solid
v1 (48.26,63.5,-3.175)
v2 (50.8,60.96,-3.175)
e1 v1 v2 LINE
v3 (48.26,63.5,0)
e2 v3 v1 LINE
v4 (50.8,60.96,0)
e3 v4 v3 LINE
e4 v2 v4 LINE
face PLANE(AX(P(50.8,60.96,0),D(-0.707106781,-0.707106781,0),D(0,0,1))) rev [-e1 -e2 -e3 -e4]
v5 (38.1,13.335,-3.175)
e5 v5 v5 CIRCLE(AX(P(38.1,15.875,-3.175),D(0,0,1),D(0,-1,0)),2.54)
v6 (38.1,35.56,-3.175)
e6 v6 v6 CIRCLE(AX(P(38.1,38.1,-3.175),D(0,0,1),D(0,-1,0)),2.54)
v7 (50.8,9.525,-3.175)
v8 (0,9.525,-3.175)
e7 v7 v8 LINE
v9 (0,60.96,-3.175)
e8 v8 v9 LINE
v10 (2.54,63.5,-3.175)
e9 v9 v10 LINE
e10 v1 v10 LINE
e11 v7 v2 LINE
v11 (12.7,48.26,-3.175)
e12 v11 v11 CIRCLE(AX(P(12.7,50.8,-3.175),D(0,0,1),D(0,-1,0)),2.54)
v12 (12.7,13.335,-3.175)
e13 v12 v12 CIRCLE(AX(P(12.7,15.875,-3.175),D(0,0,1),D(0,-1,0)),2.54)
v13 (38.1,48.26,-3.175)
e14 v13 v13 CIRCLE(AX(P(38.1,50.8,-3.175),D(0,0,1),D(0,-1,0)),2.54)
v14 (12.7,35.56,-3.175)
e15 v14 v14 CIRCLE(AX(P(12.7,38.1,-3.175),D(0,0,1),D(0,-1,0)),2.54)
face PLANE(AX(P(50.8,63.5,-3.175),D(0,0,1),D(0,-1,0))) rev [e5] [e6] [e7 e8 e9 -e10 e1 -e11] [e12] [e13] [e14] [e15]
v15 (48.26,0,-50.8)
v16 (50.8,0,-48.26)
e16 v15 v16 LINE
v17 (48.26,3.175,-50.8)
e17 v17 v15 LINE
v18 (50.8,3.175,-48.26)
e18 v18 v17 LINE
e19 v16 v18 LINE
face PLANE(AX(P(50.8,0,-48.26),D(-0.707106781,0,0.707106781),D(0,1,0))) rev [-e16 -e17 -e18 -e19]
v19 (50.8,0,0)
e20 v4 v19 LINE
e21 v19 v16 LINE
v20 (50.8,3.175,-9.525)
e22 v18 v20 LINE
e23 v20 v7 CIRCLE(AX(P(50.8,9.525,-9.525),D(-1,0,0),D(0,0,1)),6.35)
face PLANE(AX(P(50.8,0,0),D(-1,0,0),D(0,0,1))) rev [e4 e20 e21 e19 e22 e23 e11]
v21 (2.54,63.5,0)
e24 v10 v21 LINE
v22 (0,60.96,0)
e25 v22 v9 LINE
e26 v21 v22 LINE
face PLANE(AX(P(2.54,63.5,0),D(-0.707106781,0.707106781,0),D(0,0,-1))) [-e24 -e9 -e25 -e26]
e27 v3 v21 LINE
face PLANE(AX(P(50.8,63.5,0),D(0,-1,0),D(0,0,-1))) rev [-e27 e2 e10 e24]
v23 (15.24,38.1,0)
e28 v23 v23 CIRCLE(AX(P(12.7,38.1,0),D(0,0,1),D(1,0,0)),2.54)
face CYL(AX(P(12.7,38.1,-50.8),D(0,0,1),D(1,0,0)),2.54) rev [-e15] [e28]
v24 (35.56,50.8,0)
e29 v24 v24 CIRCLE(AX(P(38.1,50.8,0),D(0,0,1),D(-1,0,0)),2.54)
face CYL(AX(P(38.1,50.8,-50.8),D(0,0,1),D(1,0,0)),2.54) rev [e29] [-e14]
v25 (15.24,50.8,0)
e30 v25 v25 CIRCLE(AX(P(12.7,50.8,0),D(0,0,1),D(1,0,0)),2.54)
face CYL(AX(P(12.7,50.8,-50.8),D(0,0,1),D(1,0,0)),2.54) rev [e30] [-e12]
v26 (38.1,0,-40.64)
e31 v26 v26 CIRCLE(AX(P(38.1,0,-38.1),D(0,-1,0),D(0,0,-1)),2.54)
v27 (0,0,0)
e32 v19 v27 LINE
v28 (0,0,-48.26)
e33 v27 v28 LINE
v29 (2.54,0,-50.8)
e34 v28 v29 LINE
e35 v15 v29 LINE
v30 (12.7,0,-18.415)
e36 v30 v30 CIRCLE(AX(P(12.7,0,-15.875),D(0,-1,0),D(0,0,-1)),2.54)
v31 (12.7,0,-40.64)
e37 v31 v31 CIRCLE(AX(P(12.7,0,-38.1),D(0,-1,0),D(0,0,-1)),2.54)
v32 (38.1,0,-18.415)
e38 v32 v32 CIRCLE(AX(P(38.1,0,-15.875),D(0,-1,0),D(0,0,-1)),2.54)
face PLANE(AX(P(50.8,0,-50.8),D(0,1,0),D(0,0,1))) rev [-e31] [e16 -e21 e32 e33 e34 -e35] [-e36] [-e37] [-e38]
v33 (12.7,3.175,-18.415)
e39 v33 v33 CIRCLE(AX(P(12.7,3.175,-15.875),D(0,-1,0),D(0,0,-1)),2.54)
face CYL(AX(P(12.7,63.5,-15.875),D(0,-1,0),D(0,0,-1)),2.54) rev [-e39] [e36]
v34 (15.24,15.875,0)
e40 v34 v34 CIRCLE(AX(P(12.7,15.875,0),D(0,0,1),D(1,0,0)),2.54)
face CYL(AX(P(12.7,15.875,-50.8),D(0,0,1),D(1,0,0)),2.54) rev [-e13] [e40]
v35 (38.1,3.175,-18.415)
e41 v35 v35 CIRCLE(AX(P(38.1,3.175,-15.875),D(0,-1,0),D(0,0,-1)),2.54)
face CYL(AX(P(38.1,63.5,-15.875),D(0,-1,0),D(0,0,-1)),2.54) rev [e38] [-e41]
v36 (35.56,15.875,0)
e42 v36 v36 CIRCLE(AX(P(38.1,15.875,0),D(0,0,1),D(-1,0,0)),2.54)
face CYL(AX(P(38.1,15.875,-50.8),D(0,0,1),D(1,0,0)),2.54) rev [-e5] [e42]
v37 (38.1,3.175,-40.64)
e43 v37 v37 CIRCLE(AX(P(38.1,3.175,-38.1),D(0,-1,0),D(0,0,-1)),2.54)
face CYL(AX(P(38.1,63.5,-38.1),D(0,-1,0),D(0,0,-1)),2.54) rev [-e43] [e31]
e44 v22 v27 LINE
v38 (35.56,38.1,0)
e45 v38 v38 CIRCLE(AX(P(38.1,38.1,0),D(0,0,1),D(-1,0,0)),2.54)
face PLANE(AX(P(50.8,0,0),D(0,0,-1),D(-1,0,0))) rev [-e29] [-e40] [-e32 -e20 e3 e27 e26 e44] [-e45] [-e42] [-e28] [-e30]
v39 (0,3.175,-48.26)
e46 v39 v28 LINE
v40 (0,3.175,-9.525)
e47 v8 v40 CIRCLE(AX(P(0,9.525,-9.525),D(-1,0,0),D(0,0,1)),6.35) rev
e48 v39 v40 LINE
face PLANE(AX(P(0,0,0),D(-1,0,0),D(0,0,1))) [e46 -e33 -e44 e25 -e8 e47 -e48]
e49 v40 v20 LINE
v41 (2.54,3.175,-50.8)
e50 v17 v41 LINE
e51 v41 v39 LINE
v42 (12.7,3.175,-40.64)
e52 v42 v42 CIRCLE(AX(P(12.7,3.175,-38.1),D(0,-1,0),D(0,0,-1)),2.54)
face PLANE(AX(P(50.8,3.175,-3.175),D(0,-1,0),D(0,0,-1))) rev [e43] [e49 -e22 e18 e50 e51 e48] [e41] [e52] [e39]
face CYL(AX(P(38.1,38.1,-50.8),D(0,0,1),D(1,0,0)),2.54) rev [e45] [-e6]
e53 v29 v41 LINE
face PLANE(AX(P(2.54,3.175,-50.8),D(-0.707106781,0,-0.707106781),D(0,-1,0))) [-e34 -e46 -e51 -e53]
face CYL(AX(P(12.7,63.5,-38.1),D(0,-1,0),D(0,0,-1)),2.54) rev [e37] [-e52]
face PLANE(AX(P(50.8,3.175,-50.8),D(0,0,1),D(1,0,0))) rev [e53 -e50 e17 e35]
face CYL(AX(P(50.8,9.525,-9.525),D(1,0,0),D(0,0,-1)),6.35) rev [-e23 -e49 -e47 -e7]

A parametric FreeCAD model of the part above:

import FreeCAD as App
import Part
import Sketcher
from FreeCAD import Vector
Q = App.Units.Quantity


def edges_at(feature, points):
    """Names of the edges that pass closest to the given points."""
    edges = feature.Shape.Edges
    near = lambda p: min(range(len(edges)), key=lambda i: edges[i].distToShape(Part.Vertex(*p))[0])
    return sorted({f"Edge{near(p) + 1}" for p in points})


def add_polygon(sketch, points):
    """Adds a closed chain of lines whose ends are joined by coincident constraints."""
    first, n = sketch.GeometryCount, len(points)
    for a, b in zip(points, points[1:] + points[:1]):
        sketch.addGeometry(Part.LineSegment(App.Vector(*a, 0), App.Vector(*b, 0)), False)
    for i in range(n):
        sketch.addConstraint(Sketcher.Constraint("Coincident", first + i, 2, first + (i + 1) % n, 1))

doc = App.newDocument("Part")
body = doc.addObject("PartDesign::Body", "Body")

# Sketch on YZ plane
sketch1 = doc.addObject("Sketcher::SketchObject", "Sketch")
body.addObject(sketch1)
sketch1.AttachmentSupport = (doc.YZ_Plane, [""])
sketch1.MapMode = "FlatFace"
add_polygon(sketch1, [(63.5, 0), (0, 0), (0, -50.8), (3.2, -50.8), (3.2, -3.2), (63.5, -3.2)])  # lines 0-5
sketch1.addConstraint([
    Sketcher.Constraint("Horizontal", 0),
    Sketcher.Constraint("Vertical", 1),
    Sketcher.Constraint("Horizontal", 2),
    Sketcher.Constraint("Vertical", 3),
    Sketcher.Constraint("Horizontal", 4),
    Sketcher.Constraint("Vertical", 5),
    Sketcher.Constraint("Coincident", 0, 2, -1, 1),
    Sketcher.Constraint("Equal", 2, 5),
    Sketcher.Constraint("DistanceY", 1, 2, 1, 1, Q("2 in")),
    Sketcher.Constraint("DistanceX", 0, 2, 0, 1, Q("2.5 in")),
    Sketcher.Constraint("DistanceX", 2, 1, 2, 2, Q("0.125 in")),
])
pad1 = doc.addObject("PartDesign::Pad", "Pad")
body.addObject(pad1)
pad1.Profile = sketch1
pad1.Length = Q("2 in")

# Sketch on XY plane
sketch2 = doc.addObject("Sketcher::SketchObject", "Sketch001")
body.addObject(sketch2)
sketch2.AttachmentSupport = (doc.XY_Plane, [""])
sketch2.MapMode = "FlatFace"
sketch2.addGeometry([
    Part.Circle(Vector(12.7, 38.1, 0), Vector(0, 0, 1), 2.5),  # 0
    Part.Circle(Vector(12.7, 15.9, 0), Vector(0, 0, 1), 2.5),  # 1
    Part.Circle(Vector(12.7, 50.8, 0), Vector(0, 0, 1), 2.5),  # 2
    Part.Circle(Vector(38.1, 50.8, 0), Vector(0, 0, 1), 2.5),  # 3
    Part.Circle(Vector(38.1, 15.9, 0), Vector(0, 0, 1), 2.5),  # 4
    Part.Circle(Vector(38.1, 38.1, 0), Vector(0, 0, 1), 2.5),  # 5
], False)
sketch2.addConstraint([
    Sketcher.Constraint("Equal", 0, 1),
    Sketcher.Constraint("Equal", 1, 2),
    Sketcher.Constraint("Equal", 2, 3),
    Sketcher.Constraint("Equal", 3, 4),
    Sketcher.Constraint("Equal", 4, 5),
    Sketcher.Constraint("Horizontal", 2, 3, 3, 3),
    Sketcher.Constraint("Horizontal", 1, 3, 4, 3),
    Sketcher.Constraint("Horizontal", 0, 3, 5, 3),
    Sketcher.Constraint("Vertical", 0, 3, 1, 3),
    Sketcher.Constraint("Vertical", 1, 3, 2, 3),
    Sketcher.Constraint("Vertical", 3, 3, 4, 3),
    Sketcher.Constraint("Vertical", 4, 3, 5, 3),
    Sketcher.Constraint("Diameter", 0, Q("0.2 in")),
    Sketcher.Constraint("DistanceY", -1, 1, 2, 3, Q("2 in")),
    Sketcher.Constraint("DistanceX", 2, 3, 3, 3, Q("1 in")),
    Sketcher.Constraint("DistanceX", -1, 1, 0, 3, Q("0.5 in")),
    Sketcher.Constraint("DistanceY", -1, 1, 0, 3, Q("1.5 in")),
    Sketcher.Constraint("DistanceY", -1, 1, 1, 3, Q("0.625 in")),
])
pocket1 = doc.addObject("PartDesign::Pocket", "Pocket")
body.addObject(pocket1)
pocket1.Profile = sketch2
pocket1.Type = "ThroughAll"

# Sketch on XZ plane
sketch3 = doc.addObject("Sketcher::SketchObject", "Sketch002")
body.addObject(sketch3)
sketch3.AttachmentSupport = (doc.XZ_Plane, [""])
sketch3.MapMode = "FlatFace"
sketch3.addGeometry([
    Part.Circle(Vector(38.1, -38.1, 0), Vector(0, 0, 1), 2.5),
    Part.Circle(Vector(38.1, -15.9, 0), Vector(0, 0, 1), 2.5),
    Part.Circle(Vector(12.7, -38.1, 0), Vector(0, 0, 1), 2.5),
    Part.Circle(Vector(12.7, -15.9, 0), Vector(0, 0, 1), 2.5),
], False)
sketch3.addConstraint([
    Sketcher.Constraint("Equal", 0, 1),
    Sketcher.Constraint("Equal", 1, 2),
    Sketcher.Constraint("Equal", 2, 3),
    Sketcher.Constraint("Horizontal", 0, 3, 2, 3),
    Sketcher.Constraint("Horizontal", 1, 3, 3, 3),
    Sketcher.Constraint("Vertical", 0, 3, 1, 3),
    Sketcher.Constraint("Vertical", 2, 3, 3, 3),
    Sketcher.Constraint("Diameter", 0, Q("0.2 in")),
    Sketcher.Constraint("DistanceX", 2, 3, 0, 3, Q("1 in")),
    Sketcher.Constraint("DistanceX", -1, 1, 0, 3, Q("1.5 in")),
    Sketcher.Constraint("DistanceY", 0, 3, -1, 1, Q("1.5 in")),
    Sketcher.Constraint("DistanceY", 1, 3, -1, 1, Q("0.625 in")),
])
pocket2 = doc.addObject("PartDesign::Pocket", "Pocket001")
body.addObject(pocket2)
pocket2.Profile = sketch3
pocket2.Type = "ThroughAll"
doc.recompute()

fillet = doc.addObject("PartDesign::Fillet", "Fillet")
body.addObject(fillet)
fillet.Base = (pocket2, edges_at(pocket2, [(25.4, 3.175, -3.175)]))
fillet.Radius = Q("0.25 in")
doc.recompute()

chamfer = doc.addObject("PartDesign::Chamfer", "Chamfer")
body.addObject(chamfer)
chamfer.Base = (fillet, edges_at(fillet, [
    (50.8, 63.5, -1.587),
    (0, 63.5, -1.587),
    (0, 1.587, -50.8),
    (50.8, 1.587, -50.8),
]))
chamfer.Size = Q("0.1 in")

doc.recompute()
